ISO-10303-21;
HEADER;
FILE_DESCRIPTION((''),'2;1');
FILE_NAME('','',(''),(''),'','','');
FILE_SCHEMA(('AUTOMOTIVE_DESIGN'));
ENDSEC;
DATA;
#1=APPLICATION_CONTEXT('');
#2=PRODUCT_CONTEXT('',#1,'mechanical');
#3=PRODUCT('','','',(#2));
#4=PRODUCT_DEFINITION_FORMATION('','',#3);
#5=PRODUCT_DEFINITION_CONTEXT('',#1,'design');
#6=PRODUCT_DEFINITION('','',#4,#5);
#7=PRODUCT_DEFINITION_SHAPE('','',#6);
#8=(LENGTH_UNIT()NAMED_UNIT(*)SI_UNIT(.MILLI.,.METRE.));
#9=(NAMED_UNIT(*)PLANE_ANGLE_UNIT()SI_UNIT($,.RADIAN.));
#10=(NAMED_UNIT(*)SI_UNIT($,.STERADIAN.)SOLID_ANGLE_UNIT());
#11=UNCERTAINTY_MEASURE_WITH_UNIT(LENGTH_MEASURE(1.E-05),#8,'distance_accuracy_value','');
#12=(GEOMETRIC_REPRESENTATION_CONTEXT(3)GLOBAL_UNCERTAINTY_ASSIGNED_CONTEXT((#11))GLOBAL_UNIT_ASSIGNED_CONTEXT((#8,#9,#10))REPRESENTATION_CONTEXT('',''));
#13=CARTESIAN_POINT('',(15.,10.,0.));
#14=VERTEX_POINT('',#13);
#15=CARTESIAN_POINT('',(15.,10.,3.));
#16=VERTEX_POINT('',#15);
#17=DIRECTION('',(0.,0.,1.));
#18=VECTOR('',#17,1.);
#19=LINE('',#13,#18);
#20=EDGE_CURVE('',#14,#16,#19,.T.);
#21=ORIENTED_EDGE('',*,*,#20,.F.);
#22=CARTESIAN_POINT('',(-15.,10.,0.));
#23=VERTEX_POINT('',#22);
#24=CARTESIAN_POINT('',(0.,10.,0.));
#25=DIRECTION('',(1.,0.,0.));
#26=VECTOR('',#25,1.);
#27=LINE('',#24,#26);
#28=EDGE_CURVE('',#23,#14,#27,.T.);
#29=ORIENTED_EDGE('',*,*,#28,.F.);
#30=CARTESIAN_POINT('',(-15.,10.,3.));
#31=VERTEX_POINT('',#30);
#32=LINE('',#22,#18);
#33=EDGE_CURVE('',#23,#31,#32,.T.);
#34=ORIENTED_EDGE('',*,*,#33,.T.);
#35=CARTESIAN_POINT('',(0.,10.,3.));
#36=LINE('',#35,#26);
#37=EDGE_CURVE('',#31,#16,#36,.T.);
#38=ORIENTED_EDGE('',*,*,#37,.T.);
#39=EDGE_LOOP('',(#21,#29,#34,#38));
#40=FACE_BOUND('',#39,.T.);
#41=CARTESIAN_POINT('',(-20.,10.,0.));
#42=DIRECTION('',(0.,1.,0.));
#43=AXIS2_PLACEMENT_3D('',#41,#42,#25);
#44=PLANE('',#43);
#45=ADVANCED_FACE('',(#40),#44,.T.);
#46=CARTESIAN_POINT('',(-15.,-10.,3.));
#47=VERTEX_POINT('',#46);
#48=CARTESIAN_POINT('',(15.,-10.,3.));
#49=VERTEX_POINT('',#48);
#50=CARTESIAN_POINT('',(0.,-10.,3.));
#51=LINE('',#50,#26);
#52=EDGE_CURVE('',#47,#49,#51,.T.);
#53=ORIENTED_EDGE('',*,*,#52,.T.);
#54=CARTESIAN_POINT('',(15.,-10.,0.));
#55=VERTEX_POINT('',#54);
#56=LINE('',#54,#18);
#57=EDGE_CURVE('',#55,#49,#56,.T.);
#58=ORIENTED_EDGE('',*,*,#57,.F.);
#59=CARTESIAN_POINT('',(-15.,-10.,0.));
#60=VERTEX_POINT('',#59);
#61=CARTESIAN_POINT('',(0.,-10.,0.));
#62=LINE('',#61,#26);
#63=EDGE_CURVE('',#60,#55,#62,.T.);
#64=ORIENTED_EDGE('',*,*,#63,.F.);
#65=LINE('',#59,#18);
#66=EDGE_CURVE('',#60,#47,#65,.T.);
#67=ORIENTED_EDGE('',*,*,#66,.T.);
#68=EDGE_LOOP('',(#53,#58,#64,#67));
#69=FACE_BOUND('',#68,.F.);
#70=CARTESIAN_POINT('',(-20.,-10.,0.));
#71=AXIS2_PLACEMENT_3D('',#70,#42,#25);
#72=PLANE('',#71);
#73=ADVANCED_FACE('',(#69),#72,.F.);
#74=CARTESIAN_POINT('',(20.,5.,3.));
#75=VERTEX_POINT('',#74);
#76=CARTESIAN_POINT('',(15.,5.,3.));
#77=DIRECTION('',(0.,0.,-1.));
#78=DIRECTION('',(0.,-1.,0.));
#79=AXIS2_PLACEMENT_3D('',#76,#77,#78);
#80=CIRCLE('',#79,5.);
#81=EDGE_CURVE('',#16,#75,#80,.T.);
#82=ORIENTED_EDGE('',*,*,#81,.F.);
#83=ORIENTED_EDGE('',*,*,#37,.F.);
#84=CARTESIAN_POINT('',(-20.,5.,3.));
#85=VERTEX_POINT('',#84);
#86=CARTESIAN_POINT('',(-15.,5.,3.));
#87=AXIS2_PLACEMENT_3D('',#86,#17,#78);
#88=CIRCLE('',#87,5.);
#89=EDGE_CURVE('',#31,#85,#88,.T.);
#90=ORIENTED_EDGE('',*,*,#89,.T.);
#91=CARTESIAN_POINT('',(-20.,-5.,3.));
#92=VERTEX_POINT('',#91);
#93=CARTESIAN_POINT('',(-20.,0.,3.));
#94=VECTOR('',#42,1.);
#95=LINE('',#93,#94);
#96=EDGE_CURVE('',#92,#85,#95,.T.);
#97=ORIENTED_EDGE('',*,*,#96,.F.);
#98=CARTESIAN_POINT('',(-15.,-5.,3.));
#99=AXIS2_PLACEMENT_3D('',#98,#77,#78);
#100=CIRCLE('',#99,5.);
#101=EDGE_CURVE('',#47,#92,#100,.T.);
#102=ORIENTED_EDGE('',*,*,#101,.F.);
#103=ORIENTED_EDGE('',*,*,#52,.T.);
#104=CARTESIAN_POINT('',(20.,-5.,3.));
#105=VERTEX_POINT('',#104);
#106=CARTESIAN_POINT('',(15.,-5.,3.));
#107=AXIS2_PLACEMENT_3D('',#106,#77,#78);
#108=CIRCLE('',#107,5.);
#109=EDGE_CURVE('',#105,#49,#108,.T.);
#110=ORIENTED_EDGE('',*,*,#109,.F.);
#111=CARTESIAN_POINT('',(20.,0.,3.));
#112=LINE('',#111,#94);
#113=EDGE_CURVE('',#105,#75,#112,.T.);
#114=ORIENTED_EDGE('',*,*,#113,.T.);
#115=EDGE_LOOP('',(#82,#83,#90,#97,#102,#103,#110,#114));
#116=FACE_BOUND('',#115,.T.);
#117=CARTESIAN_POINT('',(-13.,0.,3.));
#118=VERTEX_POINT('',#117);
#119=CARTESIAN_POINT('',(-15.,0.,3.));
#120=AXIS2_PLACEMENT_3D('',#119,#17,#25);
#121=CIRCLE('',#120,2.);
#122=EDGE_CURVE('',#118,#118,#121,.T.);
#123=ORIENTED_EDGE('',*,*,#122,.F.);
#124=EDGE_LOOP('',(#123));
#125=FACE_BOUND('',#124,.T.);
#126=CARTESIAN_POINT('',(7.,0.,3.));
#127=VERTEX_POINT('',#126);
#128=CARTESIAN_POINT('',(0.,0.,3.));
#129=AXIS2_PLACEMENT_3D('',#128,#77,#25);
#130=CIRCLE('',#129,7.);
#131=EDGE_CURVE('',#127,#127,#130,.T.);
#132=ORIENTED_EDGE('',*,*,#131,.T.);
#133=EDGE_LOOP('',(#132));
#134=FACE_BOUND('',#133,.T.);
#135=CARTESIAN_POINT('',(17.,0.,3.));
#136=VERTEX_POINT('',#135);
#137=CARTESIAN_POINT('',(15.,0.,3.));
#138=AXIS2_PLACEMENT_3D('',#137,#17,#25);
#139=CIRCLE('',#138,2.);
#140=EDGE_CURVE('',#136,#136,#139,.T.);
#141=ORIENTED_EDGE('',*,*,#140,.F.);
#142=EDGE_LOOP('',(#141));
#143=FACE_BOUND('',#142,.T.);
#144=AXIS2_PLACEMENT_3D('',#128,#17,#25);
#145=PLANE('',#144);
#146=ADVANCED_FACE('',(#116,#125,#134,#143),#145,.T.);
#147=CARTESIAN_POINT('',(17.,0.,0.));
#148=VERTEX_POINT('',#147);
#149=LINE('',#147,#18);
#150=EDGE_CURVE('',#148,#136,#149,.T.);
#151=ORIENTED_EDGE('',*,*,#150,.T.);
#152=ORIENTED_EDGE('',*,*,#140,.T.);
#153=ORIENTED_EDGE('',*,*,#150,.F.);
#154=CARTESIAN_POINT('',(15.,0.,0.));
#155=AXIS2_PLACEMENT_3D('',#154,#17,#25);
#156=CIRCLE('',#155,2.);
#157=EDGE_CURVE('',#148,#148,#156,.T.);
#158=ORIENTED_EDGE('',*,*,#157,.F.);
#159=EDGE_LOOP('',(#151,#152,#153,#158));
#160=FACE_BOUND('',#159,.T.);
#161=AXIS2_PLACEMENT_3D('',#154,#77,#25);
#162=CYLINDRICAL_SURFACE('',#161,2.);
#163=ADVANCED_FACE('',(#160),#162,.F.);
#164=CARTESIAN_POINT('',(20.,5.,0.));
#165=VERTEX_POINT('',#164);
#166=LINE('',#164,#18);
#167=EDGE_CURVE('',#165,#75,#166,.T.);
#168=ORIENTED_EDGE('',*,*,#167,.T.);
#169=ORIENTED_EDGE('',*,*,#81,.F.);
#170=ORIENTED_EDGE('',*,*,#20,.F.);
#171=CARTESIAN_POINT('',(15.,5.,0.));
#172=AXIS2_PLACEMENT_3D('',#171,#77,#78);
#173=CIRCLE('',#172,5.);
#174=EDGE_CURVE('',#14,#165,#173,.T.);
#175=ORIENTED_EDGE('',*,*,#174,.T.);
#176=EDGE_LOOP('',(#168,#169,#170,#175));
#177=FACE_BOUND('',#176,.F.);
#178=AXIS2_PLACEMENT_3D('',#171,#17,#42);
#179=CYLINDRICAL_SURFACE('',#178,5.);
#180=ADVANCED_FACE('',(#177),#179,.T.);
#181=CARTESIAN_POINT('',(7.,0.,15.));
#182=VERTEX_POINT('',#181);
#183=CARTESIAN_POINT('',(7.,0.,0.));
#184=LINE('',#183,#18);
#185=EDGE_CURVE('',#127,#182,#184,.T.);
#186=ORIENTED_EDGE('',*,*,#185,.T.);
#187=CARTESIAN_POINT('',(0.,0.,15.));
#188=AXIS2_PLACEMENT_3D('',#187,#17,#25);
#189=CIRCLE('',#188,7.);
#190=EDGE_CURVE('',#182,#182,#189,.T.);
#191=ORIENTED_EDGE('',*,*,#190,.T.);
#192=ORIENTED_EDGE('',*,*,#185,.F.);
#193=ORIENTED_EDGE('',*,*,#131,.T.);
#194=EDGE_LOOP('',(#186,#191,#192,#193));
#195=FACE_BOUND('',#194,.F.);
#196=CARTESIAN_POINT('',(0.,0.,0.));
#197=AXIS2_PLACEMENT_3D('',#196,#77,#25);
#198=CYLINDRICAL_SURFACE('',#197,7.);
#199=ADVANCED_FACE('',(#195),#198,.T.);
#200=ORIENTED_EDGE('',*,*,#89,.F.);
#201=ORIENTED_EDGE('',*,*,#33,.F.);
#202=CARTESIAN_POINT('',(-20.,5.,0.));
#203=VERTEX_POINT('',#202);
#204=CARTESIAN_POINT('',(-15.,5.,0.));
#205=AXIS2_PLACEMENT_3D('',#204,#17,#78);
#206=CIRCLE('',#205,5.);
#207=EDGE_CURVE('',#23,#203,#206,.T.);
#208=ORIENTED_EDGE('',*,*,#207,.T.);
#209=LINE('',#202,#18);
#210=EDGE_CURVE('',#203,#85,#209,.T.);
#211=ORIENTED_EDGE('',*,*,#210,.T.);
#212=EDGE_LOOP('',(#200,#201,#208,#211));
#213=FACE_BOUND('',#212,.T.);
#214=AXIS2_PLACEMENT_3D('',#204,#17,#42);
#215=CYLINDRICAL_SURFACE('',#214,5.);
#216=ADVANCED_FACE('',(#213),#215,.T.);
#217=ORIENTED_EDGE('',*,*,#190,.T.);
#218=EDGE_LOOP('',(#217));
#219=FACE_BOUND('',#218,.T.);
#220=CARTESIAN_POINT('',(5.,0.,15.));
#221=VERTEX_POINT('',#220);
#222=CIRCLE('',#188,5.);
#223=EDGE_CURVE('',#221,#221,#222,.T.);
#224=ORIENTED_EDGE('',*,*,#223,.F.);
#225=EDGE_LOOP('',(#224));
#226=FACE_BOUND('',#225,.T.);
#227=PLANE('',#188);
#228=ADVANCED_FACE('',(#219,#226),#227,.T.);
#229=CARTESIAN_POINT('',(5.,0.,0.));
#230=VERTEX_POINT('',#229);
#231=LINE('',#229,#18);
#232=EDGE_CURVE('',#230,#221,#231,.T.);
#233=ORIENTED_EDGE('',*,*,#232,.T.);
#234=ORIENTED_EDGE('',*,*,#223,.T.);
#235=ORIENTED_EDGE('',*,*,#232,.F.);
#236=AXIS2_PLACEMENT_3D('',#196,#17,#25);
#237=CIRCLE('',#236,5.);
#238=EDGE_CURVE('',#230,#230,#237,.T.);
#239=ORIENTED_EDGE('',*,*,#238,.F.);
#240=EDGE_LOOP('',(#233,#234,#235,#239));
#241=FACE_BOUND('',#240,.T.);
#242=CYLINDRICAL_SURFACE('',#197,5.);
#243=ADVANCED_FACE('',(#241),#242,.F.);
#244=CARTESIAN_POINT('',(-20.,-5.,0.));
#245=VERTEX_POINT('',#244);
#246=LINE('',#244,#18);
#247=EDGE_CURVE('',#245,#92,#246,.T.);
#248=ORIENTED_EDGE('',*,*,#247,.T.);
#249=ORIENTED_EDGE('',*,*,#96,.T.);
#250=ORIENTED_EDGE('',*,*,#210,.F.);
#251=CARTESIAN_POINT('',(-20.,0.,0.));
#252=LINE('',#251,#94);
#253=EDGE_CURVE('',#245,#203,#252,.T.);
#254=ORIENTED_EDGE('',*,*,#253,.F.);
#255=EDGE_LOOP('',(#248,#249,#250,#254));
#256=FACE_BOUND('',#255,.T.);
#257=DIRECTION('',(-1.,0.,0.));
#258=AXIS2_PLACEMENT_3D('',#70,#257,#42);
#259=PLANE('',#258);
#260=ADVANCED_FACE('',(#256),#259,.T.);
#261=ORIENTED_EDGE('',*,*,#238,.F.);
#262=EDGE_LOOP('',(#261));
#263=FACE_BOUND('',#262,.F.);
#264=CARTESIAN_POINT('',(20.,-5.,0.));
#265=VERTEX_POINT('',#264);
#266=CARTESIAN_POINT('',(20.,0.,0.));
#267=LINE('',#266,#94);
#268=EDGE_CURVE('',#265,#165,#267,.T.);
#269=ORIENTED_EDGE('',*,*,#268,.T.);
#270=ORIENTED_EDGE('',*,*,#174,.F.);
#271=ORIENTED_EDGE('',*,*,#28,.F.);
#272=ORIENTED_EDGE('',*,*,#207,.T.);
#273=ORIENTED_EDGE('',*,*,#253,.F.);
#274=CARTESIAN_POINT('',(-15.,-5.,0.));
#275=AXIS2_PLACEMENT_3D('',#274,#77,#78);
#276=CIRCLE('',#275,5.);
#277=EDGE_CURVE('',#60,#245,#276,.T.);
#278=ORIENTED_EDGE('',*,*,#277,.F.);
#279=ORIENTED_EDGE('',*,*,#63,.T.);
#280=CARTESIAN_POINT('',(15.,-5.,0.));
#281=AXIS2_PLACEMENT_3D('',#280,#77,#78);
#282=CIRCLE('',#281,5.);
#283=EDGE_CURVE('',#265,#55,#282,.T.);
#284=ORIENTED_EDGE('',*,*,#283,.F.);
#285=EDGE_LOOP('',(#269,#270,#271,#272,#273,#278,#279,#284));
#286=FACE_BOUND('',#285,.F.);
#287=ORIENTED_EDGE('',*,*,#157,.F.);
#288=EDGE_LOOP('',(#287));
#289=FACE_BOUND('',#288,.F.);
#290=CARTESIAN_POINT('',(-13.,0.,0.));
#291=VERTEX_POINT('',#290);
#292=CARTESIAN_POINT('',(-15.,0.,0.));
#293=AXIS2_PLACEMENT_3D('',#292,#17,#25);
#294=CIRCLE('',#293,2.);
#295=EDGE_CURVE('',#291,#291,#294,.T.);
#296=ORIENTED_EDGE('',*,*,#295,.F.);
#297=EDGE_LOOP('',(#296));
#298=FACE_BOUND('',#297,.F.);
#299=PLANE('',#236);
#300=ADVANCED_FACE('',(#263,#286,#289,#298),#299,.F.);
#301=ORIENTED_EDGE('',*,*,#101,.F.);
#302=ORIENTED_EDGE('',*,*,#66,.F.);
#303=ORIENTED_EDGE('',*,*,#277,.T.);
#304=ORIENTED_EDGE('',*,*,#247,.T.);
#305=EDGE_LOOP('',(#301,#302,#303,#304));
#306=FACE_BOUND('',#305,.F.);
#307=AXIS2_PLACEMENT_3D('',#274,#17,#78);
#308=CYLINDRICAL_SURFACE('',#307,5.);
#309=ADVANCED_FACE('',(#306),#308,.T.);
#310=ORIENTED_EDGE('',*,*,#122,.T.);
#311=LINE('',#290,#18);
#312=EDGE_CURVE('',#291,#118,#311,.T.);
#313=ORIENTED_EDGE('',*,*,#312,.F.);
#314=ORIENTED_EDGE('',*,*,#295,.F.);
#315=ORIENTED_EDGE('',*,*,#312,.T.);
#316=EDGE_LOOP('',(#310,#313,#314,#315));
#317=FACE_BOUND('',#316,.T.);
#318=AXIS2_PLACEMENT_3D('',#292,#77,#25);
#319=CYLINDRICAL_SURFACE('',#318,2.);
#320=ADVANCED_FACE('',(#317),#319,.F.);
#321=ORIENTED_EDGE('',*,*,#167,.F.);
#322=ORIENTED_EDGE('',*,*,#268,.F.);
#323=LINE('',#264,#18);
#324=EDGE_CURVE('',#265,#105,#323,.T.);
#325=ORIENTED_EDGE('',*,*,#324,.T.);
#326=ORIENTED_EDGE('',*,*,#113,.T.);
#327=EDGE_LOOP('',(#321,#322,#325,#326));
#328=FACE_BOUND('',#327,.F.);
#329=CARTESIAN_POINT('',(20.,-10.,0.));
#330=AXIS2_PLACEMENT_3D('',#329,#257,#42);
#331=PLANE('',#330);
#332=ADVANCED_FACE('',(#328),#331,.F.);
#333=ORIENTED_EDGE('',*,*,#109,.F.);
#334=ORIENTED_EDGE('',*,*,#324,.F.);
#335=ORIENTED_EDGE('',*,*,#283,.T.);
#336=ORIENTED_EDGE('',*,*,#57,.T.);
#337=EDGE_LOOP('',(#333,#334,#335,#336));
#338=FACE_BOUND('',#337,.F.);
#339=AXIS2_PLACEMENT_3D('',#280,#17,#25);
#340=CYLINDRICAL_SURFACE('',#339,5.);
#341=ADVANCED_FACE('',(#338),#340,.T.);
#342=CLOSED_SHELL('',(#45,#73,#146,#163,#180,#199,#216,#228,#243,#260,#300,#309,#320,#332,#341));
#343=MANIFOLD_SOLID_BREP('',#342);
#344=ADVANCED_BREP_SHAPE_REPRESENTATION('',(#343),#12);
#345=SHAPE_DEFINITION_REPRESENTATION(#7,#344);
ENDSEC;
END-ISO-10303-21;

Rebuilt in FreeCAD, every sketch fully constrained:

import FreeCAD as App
import Part
import Sketcher
from FreeCAD import Vector


def edges_at(feature, points):
    """Names of the edges that pass closest to the given points."""
    edges = feature.Shape.Edges
    near = lambda p: min(range(len(edges)), key=lambda i: edges[i].distToShape(Part.Vertex(*p))[0])
    return sorted({f"Edge{near(p) + 1}" for p in points})


def add_polygon(sketch, points):
    """Adds a closed chain of lines whose ends are joined by coincident constraints."""
    first, n = sketch.GeometryCount, len(points)
    for a, b in zip(points, points[1:] + points[:1]):
        sketch.addGeometry(Part.LineSegment(App.Vector(*a, 0), App.Vector(*b, 0)), False)
    for i in range(n):
        sketch.addConstraint(Sketcher.Constraint("Coincident", first + i, 2, first + (i + 1) % n, 1))

doc = App.newDocument("Part")
params = doc.addObject("Spreadsheet::Sheet", "Params")
for row, (alias, value) in enumerate([
    ("sketch1_diameter", "4 mm"),
    ("sketch1_diameter2", "10 mm"),
    ("sketch1_width", "40 mm"),
    ("sketch1_height", "20 mm"),
    ("pad1_length", "3 mm"),
    ("sketch2_diameter", "14 mm"),
    ("sketch2_diameter2", "10 mm"),
    ("pad2_length", "15 mm"),
    ("fillet_radius", "5 mm"),
], start=1):
    params.set(f"A{row}", alias)
    params.set(f"B{row}", "=" + value)
    params.setAlias(f"B{row}", alias)

body = doc.addObject("PartDesign::Body", "Body")

sketch1 = body.newObject("Sketcher::SketchObject", "Sketch")
sketch1.AttachmentSupport = (doc.getObject("XY_Plane"), [""])
sketch1.MapMode = "FlatFace"
add_polygon(sketch1, [(-20, 10), (-20, -10), (20, -10), (20, 10)])
sketch1.addGeometry(Part.Circle(Vector(-15, 0, 0), Vector(0, 0, 1), 2), False)
sketch1.addGeometry(Part.Circle(Vector(0, 0, 0), Vector(0, 0, 1), 5), False)
sketch1.addGeometry(Part.Circle(Vector(15, 0, 0), Vector(0, 0, 1), 2), False)
sketch1.addConstraint(Sketcher.Constraint("Vertical", 0))
sketch1.addConstraint(Sketcher.Constraint("Horizontal", 1))
sketch1.addConstraint(Sketcher.Constraint("Vertical", 2))
sketch1.addConstraint(Sketcher.Constraint("Horizontal", 3))
sketch1.addConstraint(Sketcher.Constraint("Coincident", 5, 3, -1, 1))
sketch1.addConstraint(Sketcher.Constraint("Equal", 4, 6))
sketch1.addConstraint(Sketcher.Constraint("Symmetric", 4, 3, 6, 3, -1, 1))
sketch1.addConstraint(Sketcher.Constraint("Symmetric", 0, 2, 2, 2, -1, 1))
sketch1.addConstraint(Sketcher.Constraint("PointOnObject", 4, 3, -1))
sketch1.addConstraint(Sketcher.Constraint("Diameter", 4, 4.0))
sketch1.addConstraint(Sketcher.Constraint("Diameter", 5, 10.0))
sketch1.addConstraint(Sketcher.Constraint("DistanceX", 1, 1, 1, 2, 40.0))
sketch1.addConstraint(Sketcher.Constraint("DistanceY", 0, 2, 0, 1, 20.0))
sketch1.addConstraint(Sketcher.Constraint("DistanceX", 4, 3, -1, 1, 15.0))
sketch1.setExpression("Constraints[13]", "Params.sketch1_diameter")
sketch1.setExpression("Constraints[14]", "Params.sketch1_diameter2")
sketch1.setExpression("Constraints[15]", "Params.sketch1_width")
sketch1.setExpression("Constraints[16]", "Params.sketch1_height")
pad1 = body.newObject("PartDesign::Pad", "Pad")
pad1.Profile = sketch1
pad1.setExpression("Length", "Params.pad1_length")

sketch2 = body.newObject("Sketcher::SketchObject", "Sketch001")
sketch2.AttachmentSupport = (doc.getObject("XY_Plane"), [""])
sketch2.MapMode = "FlatFace"
sketch2.addGeometry(Part.Circle(Vector(0, 0, 0), Vector(0, 0, 1), 7), False)
sketch2.addGeometry(Part.Circle(Vector(0, 0, 0), Vector(0, 0, 1), 5), False)
sketch2.addConstraint(Sketcher.Constraint("Coincident", 0, 3, -1, 1))
sketch2.addConstraint(Sketcher.Constraint("Coincident", 1, 3, -1, 1))
sketch2.addConstraint(Sketcher.Constraint("Diameter", 0, 14.0))
sketch2.addConstraint(Sketcher.Constraint("Diameter", 1, 10.0))
sketch2.setExpression("Constraints[2]", "Params.sketch2_diameter")
sketch2.setExpression("Constraints[3]", "Params.sketch2_diameter2")
pad2 = body.newObject("PartDesign::Pad", "Pad001")
pad2.Profile = sketch2
pad2.setExpression("Length", "Params.pad2_length")
doc.recompute()

fillet = body.newObject("PartDesign::Fillet", "Fillet")
fillet.Base = (pad2, edges_at(pad2, [
    (-20, 10, 1.5),
    (-20, -10, 1.5),
    (20, -10, 1.5),
    (20, 10, 1.5),
]))
fillet.setExpression("Radius", "Params.fillet_radius")

doc.recompute()
